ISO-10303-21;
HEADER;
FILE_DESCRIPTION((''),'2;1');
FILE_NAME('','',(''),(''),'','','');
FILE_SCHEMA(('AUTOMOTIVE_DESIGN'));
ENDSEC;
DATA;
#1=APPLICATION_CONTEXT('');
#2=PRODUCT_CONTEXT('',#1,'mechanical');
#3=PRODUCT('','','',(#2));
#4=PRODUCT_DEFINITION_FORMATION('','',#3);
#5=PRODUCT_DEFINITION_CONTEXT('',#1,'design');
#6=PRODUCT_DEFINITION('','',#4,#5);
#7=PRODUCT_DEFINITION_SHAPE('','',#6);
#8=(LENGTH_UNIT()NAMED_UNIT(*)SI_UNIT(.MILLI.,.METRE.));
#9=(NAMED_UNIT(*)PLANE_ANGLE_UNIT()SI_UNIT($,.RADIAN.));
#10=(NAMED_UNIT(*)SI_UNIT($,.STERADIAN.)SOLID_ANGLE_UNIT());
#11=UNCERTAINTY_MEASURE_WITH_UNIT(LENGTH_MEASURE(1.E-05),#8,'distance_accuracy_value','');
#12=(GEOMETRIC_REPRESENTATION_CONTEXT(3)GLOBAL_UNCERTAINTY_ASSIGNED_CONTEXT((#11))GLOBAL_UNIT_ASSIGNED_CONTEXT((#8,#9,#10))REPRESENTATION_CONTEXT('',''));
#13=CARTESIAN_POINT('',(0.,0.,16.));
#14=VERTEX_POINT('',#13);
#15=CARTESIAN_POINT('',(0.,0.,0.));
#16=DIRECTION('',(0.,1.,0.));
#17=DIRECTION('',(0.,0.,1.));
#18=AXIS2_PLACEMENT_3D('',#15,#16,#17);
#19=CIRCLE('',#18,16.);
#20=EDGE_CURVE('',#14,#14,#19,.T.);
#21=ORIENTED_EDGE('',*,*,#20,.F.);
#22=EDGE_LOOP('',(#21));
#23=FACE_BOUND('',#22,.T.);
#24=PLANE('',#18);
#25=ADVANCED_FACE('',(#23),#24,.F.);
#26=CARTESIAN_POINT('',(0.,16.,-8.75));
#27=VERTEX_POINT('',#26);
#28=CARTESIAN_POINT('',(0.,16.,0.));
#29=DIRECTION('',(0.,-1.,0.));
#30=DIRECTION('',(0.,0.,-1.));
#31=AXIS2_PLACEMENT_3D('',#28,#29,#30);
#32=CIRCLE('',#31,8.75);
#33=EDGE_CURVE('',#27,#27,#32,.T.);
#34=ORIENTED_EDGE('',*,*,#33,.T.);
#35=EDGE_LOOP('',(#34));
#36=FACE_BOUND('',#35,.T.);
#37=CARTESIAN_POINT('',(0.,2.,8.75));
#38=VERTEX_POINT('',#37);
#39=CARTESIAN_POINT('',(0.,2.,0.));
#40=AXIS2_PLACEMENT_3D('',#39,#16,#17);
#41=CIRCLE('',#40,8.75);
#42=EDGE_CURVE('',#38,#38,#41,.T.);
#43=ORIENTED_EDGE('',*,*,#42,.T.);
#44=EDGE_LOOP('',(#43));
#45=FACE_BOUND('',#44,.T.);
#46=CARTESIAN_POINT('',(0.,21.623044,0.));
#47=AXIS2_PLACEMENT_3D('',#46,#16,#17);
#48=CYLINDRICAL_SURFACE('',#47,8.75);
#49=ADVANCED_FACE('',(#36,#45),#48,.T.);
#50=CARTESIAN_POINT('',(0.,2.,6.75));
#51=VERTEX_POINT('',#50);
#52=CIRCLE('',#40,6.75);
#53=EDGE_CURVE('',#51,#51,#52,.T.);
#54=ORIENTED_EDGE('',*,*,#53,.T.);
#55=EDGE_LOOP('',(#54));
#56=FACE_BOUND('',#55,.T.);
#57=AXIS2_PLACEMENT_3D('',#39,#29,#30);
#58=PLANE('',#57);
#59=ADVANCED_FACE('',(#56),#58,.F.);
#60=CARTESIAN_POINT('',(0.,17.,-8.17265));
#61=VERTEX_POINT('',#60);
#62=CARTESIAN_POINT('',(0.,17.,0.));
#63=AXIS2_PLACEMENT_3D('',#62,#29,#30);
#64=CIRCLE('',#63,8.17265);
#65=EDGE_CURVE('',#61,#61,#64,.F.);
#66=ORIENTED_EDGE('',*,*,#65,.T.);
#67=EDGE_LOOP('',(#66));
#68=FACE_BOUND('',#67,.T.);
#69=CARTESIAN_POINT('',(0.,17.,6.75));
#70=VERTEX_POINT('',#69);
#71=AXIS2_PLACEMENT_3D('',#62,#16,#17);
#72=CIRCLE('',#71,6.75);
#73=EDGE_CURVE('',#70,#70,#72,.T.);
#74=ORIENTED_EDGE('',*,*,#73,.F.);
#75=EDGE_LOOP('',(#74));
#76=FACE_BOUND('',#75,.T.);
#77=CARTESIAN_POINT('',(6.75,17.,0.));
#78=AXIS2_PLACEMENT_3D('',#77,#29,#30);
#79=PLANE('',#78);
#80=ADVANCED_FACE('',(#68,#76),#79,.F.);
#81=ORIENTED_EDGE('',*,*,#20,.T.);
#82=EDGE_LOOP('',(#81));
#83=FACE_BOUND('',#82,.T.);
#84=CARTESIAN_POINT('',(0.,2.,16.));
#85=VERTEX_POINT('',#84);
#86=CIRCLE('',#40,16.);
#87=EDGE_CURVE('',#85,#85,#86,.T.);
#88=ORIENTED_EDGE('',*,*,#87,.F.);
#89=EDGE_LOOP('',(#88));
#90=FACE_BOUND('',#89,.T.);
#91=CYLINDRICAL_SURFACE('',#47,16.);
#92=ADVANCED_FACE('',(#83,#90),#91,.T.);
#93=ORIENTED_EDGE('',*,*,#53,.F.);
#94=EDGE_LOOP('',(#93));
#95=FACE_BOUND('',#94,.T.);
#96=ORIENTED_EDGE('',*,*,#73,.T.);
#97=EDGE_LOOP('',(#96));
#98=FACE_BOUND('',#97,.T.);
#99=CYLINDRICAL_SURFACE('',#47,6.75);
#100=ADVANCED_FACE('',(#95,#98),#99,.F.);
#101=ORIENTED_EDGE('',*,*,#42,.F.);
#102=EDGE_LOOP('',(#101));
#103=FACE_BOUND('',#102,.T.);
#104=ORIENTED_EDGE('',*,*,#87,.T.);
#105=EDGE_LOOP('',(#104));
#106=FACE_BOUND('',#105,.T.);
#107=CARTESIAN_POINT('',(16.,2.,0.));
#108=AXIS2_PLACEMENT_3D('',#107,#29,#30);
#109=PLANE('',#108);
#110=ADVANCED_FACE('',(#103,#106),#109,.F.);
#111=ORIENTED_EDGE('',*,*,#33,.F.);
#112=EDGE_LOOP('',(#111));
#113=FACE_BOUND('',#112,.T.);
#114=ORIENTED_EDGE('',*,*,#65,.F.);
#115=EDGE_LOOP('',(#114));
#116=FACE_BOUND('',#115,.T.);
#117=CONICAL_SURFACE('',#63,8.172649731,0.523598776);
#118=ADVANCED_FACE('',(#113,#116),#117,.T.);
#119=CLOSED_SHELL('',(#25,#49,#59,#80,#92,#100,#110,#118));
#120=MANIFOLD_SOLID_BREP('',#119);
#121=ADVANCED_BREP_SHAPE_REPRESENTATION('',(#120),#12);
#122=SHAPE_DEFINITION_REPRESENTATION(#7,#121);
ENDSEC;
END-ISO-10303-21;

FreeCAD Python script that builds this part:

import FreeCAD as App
import Part
import Sketcher
Q = App.Units.Quantity


def edges_at(feature, points):
    """Names of the edges that pass closest to the given points."""
    edges = feature.Shape.Edges
    near = lambda p: min(range(len(edges)), key=lambda i: edges[i].distToShape(Part.Vertex(*p))[0])
    return sorted({f"Edge{near(p) + 1}" for p in points})


def add_polygon(sketch, points):
    """Adds a closed chain of lines whose ends are joined by coincident constraints."""
    first, n = sketch.GeometryCount, len(points)
    for a, b in zip(points, points[1:] + points[:1]):
        sketch.addGeometry(Part.LineSegment(App.Vector(*a, 0), App.Vector(*b, 0)), False)
    for i in range(n):
        sketch.addConstraint(Sketcher.Constraint("Coincident", first + i, 2, first + (i + 1) % n, 1))

doc = App.newDocument("Part")
body = doc.addObject("PartDesign::Body", "Body")

# Sketch on XY plane
sketch1 = body.newObject("Sketcher::SketchObject", "Sketch")
sketch1.AttachmentSupport = (doc.getObject("XY_Plane"), [""])
sketch1.MapMode = "FlatFace"
add_polygon(sketch1, [(16, 2), (8.8, 2), (8.8, 17), (6.8, 17), (6.8, 2), (0, 2), (0, 0), (16, 0)])  # lines 0-7
sketch1.addConstraint(Sketcher.Constraint("Horizontal", 0))
sketch1.addConstraint(Sketcher.Constraint("Vertical", 1))
sketch1.addConstraint(Sketcher.Constraint("Horizontal", 2))
sketch1.addConstraint(Sketcher.Constraint("Vertical", 3))
sketch1.addConstraint(Sketcher.Constraint("Horizontal", 4))
sketch1.addConstraint(Sketcher.Constraint("Vertical", 5))
sketch1.addConstraint(Sketcher.Constraint("Horizontal", 6))
sketch1.addConstraint(Sketcher.Constraint("Vertical", 7))
sketch1.addConstraint(Sketcher.Constraint("Coincident", 5, 2, -1, 1))
sketch1.addConstraint(Sketcher.Constraint("Horizontal", 0, 2, 3, 2))
sketch1.addConstraint(Sketcher.Constraint("Equal", 2, 5))
sketch1.addConstraint(Sketcher.Constraint("DistanceX", 2, 2, 2, 1, Q("2 mm")))
sketch1.addConstraint(Sketcher.Constraint("DistanceX", 6, 1, 6, 2, Q("16 mm")))
sketch1.addConstraint(Sketcher.Constraint("DistanceY", 1, 1, 1, 2, Q("15 mm")))
sketch1.addConstraint(Sketcher.Constraint("DistanceX", 0, 2, 0, 1, Q("7.25 mm")))
revolution = body.newObject("PartDesign::Revolution", "Revolution")
revolution.Profile = sketch1
revolution.ReferenceAxis = (sketch1, ["V_Axis"])
revolution.Angle = 360
doc.recompute()

chamfer = body.newObject("PartDesign::Chamfer", "Chamfer")
chamfer.Base = (revolution, edges_at(revolution, [(0, 17, -8.75)]))
chamfer.ChamferType = "Two distances"
chamfer.Size = 1
chamfer.Size2 = 0.57735

doc.recompute()
